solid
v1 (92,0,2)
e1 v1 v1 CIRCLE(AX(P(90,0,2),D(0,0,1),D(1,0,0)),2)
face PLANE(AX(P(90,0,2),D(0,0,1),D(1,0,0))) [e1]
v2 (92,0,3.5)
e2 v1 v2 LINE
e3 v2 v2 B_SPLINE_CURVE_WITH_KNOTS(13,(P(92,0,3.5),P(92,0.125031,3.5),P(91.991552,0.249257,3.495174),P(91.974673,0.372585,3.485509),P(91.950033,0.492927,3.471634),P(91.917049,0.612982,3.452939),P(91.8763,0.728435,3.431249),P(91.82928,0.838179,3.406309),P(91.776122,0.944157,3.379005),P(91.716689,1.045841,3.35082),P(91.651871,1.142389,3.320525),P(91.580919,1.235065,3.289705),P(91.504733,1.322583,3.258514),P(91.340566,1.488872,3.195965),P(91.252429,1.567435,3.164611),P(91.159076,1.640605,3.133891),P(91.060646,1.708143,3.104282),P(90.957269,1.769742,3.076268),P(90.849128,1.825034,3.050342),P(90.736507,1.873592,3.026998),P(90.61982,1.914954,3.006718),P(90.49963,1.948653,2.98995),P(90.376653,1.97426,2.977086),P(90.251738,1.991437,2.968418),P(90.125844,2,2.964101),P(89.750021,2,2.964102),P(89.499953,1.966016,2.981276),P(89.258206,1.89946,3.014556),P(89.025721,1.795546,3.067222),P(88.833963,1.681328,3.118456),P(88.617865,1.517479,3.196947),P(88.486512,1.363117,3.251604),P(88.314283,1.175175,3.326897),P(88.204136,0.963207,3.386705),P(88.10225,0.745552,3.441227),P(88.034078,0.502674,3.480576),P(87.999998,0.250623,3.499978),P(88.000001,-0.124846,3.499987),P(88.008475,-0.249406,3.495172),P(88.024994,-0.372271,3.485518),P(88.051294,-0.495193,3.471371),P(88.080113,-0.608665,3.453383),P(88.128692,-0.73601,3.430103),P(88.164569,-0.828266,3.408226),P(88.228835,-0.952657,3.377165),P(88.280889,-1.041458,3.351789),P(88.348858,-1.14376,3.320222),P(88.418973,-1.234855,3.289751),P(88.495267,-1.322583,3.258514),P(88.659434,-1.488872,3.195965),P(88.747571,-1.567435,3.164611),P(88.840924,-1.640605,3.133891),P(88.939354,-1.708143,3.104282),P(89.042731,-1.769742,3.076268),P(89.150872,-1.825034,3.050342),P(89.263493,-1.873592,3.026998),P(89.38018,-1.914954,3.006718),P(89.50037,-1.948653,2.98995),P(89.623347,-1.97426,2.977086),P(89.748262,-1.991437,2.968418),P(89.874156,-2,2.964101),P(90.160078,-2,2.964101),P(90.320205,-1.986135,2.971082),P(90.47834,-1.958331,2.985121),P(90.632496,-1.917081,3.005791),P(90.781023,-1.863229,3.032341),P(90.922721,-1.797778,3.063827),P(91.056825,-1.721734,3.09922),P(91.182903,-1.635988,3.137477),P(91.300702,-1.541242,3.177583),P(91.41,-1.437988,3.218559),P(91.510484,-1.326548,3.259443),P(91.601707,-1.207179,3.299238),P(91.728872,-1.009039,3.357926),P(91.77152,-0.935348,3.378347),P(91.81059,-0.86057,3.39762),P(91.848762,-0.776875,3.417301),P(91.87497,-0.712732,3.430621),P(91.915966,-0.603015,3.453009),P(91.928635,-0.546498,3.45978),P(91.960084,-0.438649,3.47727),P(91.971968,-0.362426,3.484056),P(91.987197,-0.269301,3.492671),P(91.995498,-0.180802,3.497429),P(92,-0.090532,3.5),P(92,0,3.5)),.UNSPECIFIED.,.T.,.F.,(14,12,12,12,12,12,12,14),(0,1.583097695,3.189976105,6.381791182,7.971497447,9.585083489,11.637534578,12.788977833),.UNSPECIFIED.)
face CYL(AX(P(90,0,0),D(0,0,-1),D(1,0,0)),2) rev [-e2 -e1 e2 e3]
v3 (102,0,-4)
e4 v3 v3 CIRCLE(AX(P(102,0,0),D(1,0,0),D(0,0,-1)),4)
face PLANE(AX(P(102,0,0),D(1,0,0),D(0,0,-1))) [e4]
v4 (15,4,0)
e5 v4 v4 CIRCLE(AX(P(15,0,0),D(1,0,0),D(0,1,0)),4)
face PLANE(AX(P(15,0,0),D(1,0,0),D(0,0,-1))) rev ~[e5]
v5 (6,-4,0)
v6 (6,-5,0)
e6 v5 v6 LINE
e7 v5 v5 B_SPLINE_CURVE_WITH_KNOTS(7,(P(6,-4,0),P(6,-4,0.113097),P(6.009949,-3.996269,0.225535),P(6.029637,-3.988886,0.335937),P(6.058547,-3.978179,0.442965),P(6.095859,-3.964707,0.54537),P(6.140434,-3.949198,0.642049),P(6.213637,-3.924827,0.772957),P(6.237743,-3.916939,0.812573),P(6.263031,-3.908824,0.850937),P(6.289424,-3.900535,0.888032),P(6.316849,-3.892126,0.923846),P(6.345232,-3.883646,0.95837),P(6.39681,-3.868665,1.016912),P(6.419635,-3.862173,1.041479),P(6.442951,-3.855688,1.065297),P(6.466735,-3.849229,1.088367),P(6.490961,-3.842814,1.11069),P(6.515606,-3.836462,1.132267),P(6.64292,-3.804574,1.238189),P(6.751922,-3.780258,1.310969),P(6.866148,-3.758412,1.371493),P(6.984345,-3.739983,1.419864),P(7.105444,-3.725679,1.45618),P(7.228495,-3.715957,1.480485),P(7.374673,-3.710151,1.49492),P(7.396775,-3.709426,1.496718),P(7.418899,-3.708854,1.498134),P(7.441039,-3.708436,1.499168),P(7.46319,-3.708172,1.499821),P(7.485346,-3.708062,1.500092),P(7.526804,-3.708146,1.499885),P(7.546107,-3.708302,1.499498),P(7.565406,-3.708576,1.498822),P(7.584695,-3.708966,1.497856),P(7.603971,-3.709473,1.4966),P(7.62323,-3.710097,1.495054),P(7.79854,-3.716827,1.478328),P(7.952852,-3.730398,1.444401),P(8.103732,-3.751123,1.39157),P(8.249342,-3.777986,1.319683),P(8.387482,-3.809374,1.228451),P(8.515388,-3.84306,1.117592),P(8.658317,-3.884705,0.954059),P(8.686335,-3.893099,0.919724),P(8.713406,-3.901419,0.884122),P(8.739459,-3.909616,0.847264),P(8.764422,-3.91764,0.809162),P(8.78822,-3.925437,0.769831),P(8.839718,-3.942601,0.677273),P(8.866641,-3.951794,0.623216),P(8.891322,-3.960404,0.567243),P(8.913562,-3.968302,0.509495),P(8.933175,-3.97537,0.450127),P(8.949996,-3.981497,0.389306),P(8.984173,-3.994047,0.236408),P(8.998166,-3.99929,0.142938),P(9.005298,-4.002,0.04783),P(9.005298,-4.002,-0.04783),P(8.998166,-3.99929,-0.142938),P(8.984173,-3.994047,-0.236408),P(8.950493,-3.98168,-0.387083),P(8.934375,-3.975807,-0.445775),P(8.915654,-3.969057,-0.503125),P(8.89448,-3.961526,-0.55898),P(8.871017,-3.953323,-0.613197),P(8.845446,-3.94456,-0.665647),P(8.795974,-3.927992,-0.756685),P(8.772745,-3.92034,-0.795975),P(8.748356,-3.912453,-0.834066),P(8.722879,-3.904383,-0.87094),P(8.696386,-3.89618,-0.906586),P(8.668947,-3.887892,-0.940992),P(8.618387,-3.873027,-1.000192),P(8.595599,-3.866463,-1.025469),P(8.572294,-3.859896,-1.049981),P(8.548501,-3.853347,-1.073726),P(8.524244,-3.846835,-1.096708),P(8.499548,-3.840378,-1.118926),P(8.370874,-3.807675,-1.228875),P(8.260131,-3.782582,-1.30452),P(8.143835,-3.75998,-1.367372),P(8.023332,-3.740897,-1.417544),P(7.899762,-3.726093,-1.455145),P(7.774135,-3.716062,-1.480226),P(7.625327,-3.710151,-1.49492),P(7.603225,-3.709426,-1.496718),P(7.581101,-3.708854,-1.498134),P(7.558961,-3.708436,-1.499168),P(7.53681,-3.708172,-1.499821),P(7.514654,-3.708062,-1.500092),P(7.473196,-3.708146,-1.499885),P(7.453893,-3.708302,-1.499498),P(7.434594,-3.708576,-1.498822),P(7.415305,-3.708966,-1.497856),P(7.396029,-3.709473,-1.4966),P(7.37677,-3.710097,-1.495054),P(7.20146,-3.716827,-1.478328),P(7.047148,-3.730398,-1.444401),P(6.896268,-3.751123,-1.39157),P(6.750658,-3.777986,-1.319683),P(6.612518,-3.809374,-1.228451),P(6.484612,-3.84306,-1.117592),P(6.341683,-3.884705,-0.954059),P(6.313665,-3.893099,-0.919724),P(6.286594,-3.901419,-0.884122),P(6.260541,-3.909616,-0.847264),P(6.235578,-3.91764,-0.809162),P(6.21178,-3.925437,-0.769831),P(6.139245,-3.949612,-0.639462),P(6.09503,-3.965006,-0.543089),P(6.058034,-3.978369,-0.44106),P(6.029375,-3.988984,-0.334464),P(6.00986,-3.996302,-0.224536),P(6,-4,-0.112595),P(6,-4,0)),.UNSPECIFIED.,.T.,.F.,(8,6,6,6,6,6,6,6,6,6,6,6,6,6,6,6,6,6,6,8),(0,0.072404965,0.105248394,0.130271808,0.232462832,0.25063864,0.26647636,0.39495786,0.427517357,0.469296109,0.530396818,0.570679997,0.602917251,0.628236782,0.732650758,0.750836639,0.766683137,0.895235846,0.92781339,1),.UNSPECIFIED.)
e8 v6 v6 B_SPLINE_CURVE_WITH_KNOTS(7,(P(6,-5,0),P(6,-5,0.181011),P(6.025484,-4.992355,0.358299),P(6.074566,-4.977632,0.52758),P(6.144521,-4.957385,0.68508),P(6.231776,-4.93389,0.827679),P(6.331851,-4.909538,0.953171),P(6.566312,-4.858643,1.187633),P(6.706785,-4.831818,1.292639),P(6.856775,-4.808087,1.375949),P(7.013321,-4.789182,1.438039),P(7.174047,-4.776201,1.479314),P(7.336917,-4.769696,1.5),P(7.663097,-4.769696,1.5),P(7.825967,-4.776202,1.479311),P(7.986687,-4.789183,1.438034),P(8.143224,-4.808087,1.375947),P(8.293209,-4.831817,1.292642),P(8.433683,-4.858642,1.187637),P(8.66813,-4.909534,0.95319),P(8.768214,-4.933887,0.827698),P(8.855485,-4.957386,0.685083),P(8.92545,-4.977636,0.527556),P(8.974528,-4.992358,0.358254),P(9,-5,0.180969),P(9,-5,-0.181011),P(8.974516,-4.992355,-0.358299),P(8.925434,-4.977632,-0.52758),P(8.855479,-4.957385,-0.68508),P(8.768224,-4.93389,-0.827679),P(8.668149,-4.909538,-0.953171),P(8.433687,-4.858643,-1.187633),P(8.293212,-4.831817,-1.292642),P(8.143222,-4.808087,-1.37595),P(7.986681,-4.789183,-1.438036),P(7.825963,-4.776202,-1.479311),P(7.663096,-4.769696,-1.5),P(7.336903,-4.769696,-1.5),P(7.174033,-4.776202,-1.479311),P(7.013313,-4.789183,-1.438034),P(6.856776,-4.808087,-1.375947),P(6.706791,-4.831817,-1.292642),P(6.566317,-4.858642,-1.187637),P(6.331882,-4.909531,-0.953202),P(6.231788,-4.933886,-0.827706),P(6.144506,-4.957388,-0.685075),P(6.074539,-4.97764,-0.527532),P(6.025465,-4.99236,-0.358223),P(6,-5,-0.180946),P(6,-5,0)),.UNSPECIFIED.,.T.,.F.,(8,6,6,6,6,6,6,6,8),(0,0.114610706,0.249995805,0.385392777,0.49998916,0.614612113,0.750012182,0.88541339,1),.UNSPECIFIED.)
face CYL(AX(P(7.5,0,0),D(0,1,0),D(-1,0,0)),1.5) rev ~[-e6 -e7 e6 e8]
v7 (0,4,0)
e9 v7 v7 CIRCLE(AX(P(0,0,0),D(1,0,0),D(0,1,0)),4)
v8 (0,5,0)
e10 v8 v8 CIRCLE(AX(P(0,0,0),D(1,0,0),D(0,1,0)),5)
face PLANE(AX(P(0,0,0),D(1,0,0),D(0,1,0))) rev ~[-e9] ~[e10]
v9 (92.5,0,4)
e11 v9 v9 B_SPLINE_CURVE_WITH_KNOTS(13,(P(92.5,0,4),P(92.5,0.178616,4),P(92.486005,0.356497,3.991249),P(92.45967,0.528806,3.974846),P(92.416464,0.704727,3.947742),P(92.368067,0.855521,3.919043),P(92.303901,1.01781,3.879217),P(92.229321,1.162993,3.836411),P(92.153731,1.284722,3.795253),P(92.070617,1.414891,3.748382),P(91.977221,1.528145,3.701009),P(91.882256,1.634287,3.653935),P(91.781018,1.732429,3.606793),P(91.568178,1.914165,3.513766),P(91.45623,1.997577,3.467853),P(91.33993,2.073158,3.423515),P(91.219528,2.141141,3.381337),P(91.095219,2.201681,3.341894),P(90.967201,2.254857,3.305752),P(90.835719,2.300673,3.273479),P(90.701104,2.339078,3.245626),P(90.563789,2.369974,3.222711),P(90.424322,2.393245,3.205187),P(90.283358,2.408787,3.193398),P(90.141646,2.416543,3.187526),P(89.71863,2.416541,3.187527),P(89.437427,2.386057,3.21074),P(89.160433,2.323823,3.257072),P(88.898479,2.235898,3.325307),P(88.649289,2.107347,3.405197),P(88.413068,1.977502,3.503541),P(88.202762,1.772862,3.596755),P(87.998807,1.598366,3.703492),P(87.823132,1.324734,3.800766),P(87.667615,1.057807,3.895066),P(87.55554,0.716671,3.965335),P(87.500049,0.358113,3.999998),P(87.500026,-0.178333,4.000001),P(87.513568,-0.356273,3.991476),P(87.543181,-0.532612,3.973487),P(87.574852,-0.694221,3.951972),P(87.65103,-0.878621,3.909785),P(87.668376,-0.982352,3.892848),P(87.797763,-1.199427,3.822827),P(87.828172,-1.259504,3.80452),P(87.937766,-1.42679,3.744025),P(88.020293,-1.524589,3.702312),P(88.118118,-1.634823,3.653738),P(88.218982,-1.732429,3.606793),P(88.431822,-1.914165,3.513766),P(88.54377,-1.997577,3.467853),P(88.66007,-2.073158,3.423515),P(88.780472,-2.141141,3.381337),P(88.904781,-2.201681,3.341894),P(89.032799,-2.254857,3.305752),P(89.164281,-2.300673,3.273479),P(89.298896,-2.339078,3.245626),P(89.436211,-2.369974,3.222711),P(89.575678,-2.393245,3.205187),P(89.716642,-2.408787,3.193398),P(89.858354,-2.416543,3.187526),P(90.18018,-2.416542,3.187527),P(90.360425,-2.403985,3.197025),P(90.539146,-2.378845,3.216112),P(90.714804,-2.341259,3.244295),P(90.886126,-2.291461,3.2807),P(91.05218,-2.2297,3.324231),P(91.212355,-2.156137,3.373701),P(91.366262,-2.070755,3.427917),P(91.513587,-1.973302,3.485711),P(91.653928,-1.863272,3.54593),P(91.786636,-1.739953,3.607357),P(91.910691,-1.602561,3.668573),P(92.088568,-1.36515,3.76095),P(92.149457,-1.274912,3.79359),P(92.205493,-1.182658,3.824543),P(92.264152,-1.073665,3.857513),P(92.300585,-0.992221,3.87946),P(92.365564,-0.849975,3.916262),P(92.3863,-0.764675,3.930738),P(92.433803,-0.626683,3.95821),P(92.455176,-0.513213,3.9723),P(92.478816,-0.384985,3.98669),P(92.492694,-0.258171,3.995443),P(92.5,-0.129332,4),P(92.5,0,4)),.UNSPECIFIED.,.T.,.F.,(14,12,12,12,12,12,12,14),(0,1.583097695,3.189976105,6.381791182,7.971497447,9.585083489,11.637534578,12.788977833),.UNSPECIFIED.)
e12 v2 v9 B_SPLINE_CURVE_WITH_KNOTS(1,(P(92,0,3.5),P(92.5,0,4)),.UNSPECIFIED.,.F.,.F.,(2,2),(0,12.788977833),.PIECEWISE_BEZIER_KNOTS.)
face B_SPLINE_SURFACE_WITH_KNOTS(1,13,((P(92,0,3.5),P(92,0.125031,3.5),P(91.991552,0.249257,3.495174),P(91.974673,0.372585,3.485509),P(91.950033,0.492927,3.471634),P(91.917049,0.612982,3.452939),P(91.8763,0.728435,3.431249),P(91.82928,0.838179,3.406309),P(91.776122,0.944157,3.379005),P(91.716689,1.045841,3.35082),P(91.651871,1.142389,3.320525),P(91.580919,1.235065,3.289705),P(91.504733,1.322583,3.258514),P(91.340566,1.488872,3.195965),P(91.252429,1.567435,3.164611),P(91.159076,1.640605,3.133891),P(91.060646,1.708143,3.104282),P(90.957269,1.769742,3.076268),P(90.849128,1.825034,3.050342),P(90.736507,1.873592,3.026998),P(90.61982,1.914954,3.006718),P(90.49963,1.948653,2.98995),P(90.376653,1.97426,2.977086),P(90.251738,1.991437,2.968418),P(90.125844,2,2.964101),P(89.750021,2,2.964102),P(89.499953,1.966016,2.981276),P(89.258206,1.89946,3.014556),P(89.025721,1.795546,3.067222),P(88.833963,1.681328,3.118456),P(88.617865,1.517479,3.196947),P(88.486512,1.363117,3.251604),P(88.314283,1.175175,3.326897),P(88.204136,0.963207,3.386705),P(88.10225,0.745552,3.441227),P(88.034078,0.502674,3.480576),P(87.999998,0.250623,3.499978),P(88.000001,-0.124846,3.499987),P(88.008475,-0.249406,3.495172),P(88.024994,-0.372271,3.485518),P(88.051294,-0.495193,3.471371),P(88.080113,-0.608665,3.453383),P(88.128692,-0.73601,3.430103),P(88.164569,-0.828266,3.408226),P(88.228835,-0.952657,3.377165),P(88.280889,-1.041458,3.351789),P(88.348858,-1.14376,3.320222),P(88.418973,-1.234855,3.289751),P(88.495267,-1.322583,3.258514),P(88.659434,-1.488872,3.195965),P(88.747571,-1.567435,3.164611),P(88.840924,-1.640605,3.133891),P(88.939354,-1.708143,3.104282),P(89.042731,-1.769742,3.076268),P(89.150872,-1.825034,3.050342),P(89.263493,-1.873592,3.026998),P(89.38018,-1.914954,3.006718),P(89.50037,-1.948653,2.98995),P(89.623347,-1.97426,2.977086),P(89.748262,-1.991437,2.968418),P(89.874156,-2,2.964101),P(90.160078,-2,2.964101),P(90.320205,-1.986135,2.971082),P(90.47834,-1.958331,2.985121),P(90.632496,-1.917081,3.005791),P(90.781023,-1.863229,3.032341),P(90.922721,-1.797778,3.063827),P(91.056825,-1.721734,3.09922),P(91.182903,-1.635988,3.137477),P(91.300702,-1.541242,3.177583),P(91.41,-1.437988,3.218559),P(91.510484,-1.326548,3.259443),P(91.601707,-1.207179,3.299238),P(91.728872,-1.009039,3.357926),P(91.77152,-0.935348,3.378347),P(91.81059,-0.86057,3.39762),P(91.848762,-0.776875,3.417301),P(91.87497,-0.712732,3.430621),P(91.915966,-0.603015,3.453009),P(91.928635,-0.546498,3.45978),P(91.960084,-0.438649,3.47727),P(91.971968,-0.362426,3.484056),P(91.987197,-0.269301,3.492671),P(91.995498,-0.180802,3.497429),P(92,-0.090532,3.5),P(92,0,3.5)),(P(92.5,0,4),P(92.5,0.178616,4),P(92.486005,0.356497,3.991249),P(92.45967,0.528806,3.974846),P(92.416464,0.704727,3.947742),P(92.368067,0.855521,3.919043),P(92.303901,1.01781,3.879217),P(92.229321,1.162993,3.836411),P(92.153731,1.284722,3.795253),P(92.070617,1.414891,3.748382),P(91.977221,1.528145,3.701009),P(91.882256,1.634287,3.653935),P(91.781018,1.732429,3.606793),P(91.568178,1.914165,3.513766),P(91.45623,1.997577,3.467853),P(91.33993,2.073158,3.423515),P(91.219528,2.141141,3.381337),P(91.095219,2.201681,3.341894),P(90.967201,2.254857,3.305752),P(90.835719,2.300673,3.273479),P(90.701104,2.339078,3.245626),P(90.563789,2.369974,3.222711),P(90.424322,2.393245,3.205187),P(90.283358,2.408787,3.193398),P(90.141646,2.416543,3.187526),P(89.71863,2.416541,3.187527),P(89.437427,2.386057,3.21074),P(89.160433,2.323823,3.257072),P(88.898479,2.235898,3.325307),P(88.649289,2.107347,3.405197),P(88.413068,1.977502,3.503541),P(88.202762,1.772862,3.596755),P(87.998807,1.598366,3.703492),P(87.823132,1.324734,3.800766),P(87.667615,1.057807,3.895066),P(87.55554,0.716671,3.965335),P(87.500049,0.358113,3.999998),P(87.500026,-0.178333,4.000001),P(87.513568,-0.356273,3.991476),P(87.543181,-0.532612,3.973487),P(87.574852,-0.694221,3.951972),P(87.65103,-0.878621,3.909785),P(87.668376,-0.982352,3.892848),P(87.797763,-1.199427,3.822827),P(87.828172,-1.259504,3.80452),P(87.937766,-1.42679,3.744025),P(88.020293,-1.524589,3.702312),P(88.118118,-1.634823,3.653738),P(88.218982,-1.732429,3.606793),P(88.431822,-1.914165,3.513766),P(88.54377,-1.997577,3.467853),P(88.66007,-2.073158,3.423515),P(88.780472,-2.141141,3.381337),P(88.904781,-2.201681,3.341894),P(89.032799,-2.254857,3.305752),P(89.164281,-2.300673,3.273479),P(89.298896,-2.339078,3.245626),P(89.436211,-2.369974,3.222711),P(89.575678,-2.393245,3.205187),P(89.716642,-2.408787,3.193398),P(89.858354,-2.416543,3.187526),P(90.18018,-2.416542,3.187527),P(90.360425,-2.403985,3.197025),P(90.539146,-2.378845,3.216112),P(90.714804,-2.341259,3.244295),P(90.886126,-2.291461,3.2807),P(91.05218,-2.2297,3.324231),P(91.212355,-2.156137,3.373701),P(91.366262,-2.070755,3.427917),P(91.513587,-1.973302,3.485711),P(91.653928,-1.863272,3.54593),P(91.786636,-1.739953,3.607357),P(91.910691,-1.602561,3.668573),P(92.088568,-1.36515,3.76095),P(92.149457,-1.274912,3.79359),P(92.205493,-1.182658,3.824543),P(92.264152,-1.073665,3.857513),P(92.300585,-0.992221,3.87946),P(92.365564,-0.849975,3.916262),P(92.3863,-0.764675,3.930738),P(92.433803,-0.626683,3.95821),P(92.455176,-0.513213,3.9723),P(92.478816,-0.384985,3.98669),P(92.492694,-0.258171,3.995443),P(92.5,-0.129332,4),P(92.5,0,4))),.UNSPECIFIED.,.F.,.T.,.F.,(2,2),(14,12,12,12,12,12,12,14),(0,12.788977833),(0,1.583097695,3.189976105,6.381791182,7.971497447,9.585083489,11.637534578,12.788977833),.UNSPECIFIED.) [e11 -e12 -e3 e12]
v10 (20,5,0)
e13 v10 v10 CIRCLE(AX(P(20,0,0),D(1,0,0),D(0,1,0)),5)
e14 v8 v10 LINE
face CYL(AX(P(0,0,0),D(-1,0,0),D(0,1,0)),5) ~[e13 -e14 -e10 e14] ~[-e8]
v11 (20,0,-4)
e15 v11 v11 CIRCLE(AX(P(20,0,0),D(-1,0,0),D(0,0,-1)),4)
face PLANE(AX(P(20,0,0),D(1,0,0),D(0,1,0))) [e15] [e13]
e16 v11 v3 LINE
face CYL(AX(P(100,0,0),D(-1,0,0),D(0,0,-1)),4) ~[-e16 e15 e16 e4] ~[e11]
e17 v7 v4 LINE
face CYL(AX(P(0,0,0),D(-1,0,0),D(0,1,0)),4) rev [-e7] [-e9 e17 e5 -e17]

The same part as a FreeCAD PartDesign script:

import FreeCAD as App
import Part
import Sketcher
from FreeCAD import Vector


def edges_at(feature, points):
    """Names of the edges that pass closest to the given points."""
    edges = feature.Shape.Edges
    near = lambda p: min(range(len(edges)), key=lambda i: edges[i].distToShape(Part.Vertex(*p))[0])
    return sorted({f"Edge{near(p) + 1}" for p in points})

doc = App.newDocument("Part")
params = doc.addObject("Spreadsheet::Sheet", "Params")
for row, (alias, value) in enumerate([
    ("sketch1_diameter", "10 mm"),
    ("sketch1_diameter2", "8 mm"),
    ("pad1_length", "20 mm"),
    ("sketch2_diameter", "8 mm"),
    ("pad2_length", "85 mm"),
    ("sketch3_diameter", "3 mm"),
    ("pocket1_length", "60 mm"),
    ("sketch4_diameter", "4 mm"),
    ("pocket2_length", "10 mm"),
    ("sketch5_diameter", "4 mm"),
    ("pad3_length", "2 mm"),
    ("chamfer_size", "0.5 mm"),
    ("sketch6_diameter", "8 mm"),
    ("pad4_length", "2 mm"),
], start=1):
    params.set(f"A{row}", alias)
    params.set(f"B{row}", "=" + value)
    params.setAlias(f"B{row}", alias)

body = doc.addObject("PartDesign::Body", "Body")

# Sketch on YZ plane
sketch1 = body.newObject("Sketcher::SketchObject", "Sketch")
sketch1.AttachmentSupport = (doc.getObject("YZ_Plane"), [""])
sketch1.MapMode = "FlatFace"
sketch1.addGeometry(Part.Circle(Vector(0, 0, 0), Vector(0, 0, 1), 5), False)
sketch1.addGeometry(Part.Circle(Vector(0, 0, 0), Vector(0, 0, 1), 4), False)
sketch1.addConstraint(Sketcher.Constraint("Coincident", 0, 3, -1, 1))
sketch1.addConstraint(Sketcher.Constraint("Coincident", 1, 3, -1, 1))
sketch1.addConstraint(Sketcher.Constraint("Diameter", 0, 10.0))
sketch1.addConstraint(Sketcher.Constraint("Diameter", 1, 8.0))
sketch1.setExpression("Constraints[2]", "Params.sketch1_diameter")
sketch1.setExpression("Constraints[3]", "Params.sketch1_diameter2")
pad1 = body.newObject("PartDesign::Pad", "Pad")
pad1.Profile = sketch1
pad1.setExpression("Length", "Params.pad1_length")

# Sketch on YZ plane
sketch2 = body.newObject("Sketcher::SketchObject", "Sketch001")
sketch2.AttachmentSupport = (doc.getObject("YZ_Plane"), [""])
sketch2.MapMode = "FlatFace"
sketch2.AttachmentOffset = App.Placement(Vector(0, 0, 15), App.Rotation())
sketch2.addGeometry(Part.Circle(Vector(0, 0, 0), Vector(0, 0, 1), 4), False)
sketch2.addConstraint(Sketcher.Constraint("Coincident", 0, 3, -1, 1))
sketch2.addConstraint(Sketcher.Constraint("Diameter", 0, 8.0))
sketch2.setExpression("Constraints[1]", "Params.sketch2_diameter")
pad2 = body.newObject("PartDesign::Pad", "Pad001")
pad2.Profile = sketch2
pad2.setExpression("Length", "Params.pad2_length")

# Sketch on XZ plane
sketch3 = body.newObject("Sketcher::SketchObject", "Sketch002")
sketch3.AttachmentSupport = (doc.getObject("XZ_Plane"), [""])
sketch3.MapMode = "FlatFace"
sketch3.addGeometry(Part.Circle(Vector(7.5, 0, 0), Vector(0, 0, 1), 1.5), False)
sketch3.addConstraint(Sketcher.Constraint("PointOnObject", 0, 3, -1))
sketch3.addConstraint(Sketcher.Constraint("Diameter", 0, 3.0))
sketch3.addConstraint(Sketcher.Constraint("DistanceX", -1, 1, 0, 3, 7.5))
sketch3.setExpression("Constraints[1]", "Params.sketch3_diameter")
pocket1 = body.newObject("PartDesign::Pocket", "Pocket")
pocket1.Profile = sketch3
pocket1.setExpression("Length", "Params.pocket1_length")
pocket1.Reversed = True

# Sketch on XY plane
sketch4 = body.newObject("Sketcher::SketchObject", "Sketch003")
sketch4.AttachmentSupport = (doc.getObject("XY_Plane"), [""])
sketch4.MapMode = "FlatFace"
sketch4.addGeometry(Part.Circle(Vector(90, 0, 0), Vector(0, 0, 1), 2), False)
sketch4.addConstraint(Sketcher.Constraint("PointOnObject", 0, 3, -1))
sketch4.addConstraint(Sketcher.Constraint("Diameter", 0, 4.0))
sketch4.addConstraint(Sketcher.Constraint("DistanceX", -1, 1, 0, 3, 90.0))
sketch4.setExpression("Constraints[1]", "Params.sketch4_diameter")
pocket2 = body.newObject("PartDesign::Pocket", "Pocket001")
pocket2.Profile = sketch4
pocket2.setExpression("Length", "Params.pocket2_length")
pocket2.Reversed = True

# Sketch on XY plane
sketch5 = body.newObject("Sketcher::SketchObject", "Sketch004")
sketch5.AttachmentSupport = (doc.getObject("XY_Plane"), [""])
sketch5.MapMode = "FlatFace"
sketch5.addGeometry(Part.Circle(Vector(90, 0, 0), Vector(0, 0, 1), 2), False)
sketch5.addConstraint(Sketcher.Constraint("PointOnObject", 0, 3, -1))
sketch5.addConstraint(Sketcher.Constraint("Diameter", 0, 4.0))
sketch5.addConstraint(Sketcher.Constraint("DistanceX", -1, 1, 0, 3, 90.0))
sketch5.setExpression("Constraints[1]", "Params.sketch5_diameter")
pad3 = body.newObject("PartDesign::Pad", "Pad002")
pad3.Profile = sketch5
pad3.setExpression("Length", "Params.pad3_length")
doc.recompute()

chamfer = body.newObject("PartDesign::Chamfer", "Chamfer")
chamfer.Base = (pad3, edges_at(pad3, [(88, -0.015, 4)]))
chamfer.setExpression("Size", "Params.chamfer_size")

# Sketch on YZ plane
sketch6 = body.newObject("Sketcher::SketchObject", "Sketch005")
sketch6.AttachmentSupport = (doc.getObject("YZ_Plane"), [""])
sketch6.MapMode = "FlatFace"
sketch6.AttachmentOffset = App.Placement(Vector(0, 0, 100), App.Rotation())
sketch6.addGeometry(Part.Circle(Vector(0, 0, 0), Vector(0, 0, 1), 4), False)
sketch6.addConstraint(Sketcher.Constraint("Coincident", 0, 3, -1, 1))
sketch6.addConstraint(Sketcher.Constraint("Diameter", 0, 8.0))
sketch6.setExpression("Constraints[1]", "Params.sketch6_diameter")
pad4 = body.newObject("PartDesign::Pad", "Pad003")
pad4.Profile = sketch6
pad4.setExpression("Length", "Params.pad4_length")

doc.recompute()
